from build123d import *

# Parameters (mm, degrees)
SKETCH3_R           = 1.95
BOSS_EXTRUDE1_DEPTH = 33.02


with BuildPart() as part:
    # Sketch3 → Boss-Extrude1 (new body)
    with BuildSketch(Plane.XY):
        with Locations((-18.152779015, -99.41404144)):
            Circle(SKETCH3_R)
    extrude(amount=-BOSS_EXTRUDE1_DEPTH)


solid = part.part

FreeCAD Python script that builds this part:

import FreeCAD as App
import Part
import Sketcher

doc = App.newDocument("Part")
params = doc.addObject("Spreadsheet::Sheet", "Params")
for row, (alias, value) in enumerate([
    ("sketch1_diameter", "3.9 mm"),
    ("pad1_length", "33.02 mm"),
], start=1):
    params.set(f"A{row}", alias)
    params.set(f"B{row}", "=" + value)
    params.setAlias(f"B{row}", alias)

body = doc.addObject("PartDesign::Body", "Body")

sketch1 = body.newObject("Sketcher::SketchObject", "Sketch")
sketch1.AttachmentSupport = (doc.getObject("XY_Plane"), [""])
sketch1.MapMode = "FlatFace"
sketch1.addGeometry(Part.Circle(App.Vector(-18.2, -99.4, 0), App.Vector(0, 0, 1), 1.9), False)
sketch1.addConstraint(Sketcher.Constraint("Diameter", 0, 3.9))
sketch1.addConstraint(Sketcher.Constraint("DistanceX", 0, 3, -1, 1, 18.152779))
sketch1.addConstraint(Sketcher.Constraint("DistanceY", 0, 3, -1, 1, 99.414041))
sketch1.setExpression("Constraints[0]", "Params.sketch1_diameter")
pad1 = body.newObject("PartDesign::Pad", "Pad")
pad1.Profile = sketch1
pad1.setExpression("Length", "Params.pad1_length")
pad1.Reversed = True

doc.recompute()
